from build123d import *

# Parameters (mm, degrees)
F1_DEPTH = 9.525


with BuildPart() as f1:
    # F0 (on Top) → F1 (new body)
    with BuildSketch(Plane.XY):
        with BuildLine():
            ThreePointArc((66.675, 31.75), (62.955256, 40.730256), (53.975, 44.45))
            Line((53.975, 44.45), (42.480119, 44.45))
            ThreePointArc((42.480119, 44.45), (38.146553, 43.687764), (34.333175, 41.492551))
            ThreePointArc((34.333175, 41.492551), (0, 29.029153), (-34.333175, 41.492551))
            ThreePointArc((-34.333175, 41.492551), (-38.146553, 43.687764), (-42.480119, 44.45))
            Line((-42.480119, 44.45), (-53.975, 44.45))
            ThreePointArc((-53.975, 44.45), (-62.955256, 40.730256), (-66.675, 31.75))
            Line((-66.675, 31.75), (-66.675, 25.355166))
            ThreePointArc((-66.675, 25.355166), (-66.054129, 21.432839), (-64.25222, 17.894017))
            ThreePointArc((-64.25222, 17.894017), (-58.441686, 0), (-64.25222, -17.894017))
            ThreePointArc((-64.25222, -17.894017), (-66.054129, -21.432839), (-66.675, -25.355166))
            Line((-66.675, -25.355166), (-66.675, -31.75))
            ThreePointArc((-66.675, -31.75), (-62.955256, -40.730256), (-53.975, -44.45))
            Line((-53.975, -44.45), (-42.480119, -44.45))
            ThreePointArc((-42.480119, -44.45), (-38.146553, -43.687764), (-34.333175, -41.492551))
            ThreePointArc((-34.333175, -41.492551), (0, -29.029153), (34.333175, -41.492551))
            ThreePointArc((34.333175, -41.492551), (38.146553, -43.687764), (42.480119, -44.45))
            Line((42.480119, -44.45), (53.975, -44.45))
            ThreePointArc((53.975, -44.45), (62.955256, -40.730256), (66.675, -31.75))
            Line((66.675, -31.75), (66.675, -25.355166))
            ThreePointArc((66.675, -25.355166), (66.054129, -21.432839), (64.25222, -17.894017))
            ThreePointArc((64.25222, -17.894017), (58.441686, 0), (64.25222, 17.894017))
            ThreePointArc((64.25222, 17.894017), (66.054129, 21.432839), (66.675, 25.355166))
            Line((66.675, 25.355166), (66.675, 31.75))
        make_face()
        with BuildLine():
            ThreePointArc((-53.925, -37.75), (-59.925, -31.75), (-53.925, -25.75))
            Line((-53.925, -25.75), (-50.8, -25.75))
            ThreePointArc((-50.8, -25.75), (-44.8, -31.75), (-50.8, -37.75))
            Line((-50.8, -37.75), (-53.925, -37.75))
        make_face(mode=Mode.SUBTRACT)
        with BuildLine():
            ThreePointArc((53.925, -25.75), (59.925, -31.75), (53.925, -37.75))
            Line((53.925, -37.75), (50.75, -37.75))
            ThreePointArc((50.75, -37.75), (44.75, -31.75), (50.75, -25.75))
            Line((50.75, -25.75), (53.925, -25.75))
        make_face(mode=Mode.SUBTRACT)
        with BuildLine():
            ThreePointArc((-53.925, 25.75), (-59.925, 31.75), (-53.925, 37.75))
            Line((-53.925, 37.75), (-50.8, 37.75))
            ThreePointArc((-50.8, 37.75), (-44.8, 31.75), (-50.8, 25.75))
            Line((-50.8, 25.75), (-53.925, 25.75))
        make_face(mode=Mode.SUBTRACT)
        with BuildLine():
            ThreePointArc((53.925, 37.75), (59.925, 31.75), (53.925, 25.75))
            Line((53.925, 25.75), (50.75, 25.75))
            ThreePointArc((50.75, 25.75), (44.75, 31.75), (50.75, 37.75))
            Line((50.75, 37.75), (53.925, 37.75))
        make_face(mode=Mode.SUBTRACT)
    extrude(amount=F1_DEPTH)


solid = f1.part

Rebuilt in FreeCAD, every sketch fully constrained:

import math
import FreeCAD as App
import Part
import Sketcher
from FreeCAD import Vector
Q = App.Units.Quantity

doc = App.newDocument("Part")
params = doc.addObject("Spreadsheet::Sheet", "Params")
for row, (alias, value) in enumerate([
    ("sketch1_radius", "0.5 in"),
    ("sketch1_radius2", "0.4999999 in"),
    ("sketch1_width", "0.125 in"),
    ("pad1_length", "0.375 in"),
], start=1):
    params.set(f"A{row}", alias)
    params.set(f"B{row}", "=" + value)
    params.setAlias(f"B{row}", alias)

body = doc.addObject("PartDesign::Body", "Body")

sketch1 = doc.addObject("Sketcher::SketchObject", "Sketch")
body.addObject(sketch1)
sketch1.AttachmentSupport = (doc.XY_Plane, [""])
sketch1.MapMode = "FlatFace"
sketch1.addGeometry(Part.ArcOfCircle(Part.Circle(Vector(54, 31.7, 0), Vector(0, 0, 1), 12.7), math.radians(0), math.radians(90)), False)
sketch1.addGeometry(Part.LineSegment(Vector(54, 44.5, 0), Vector(42.5, 44.5, 0)), False)
sketch1.addGeometry(Part.ArcOfCircle(Part.Circle(Vector(42.5, 31.8, 0), Vector(0, 0, 1), 12.7), math.radians(90), math.radians(130)), False)
sketch1.addGeometry(Part.ArcOfCircle(Part.Circle(Vector(0, 82.5, 0), Vector(0, 0, 1), 53.5), math.radians(-130), math.radians(-50)), False)
sketch1.addGeometry(Part.ArcOfCircle(Part.Circle(Vector(-42.5, 31.8, 0), Vector(0, 0, 1), 12.7), math.radians(50), math.radians(90)), False)
sketch1.addGeometry(Part.LineSegment(Vector(-42.5, 44.5, 0), Vector(-54, 44.5, 0)), False)
sketch1.addGeometry(Part.ArcOfCircle(Part.Circle(Vector(-54, 31.7, 0), Vector(0, 0, 1), 12.7), math.radians(90), math.radians(180)), False)
sketch1.addGeometry(Part.LineSegment(Vector(-66.7, 31.8, 0), Vector(-66.7, 25.4, 0)), False)
sketch1.addGeometry(Part.ArcOfCircle(Part.Circle(Vector(-54, 25.4, 0), Vector(0, 0, 1), 12.7), math.radians(180), math.radians(216)), False)
sketch1.addGeometry(Part.ArcOfCircle(Part.Circle(Vector(-88.9, 0, 0), Vector(0, 0, 1), 30.5), math.radians(-36), math.radians(36)), False)
sketch1.addGeometry(Part.ArcOfCircle(Part.Circle(Vector(-54, -25.4, 0), Vector(0, 0, 1), 12.7), math.radians(144), math.radians(180)), False)
sketch1.addGeometry(Part.LineSegment(Vector(-66.7, -25.4, 0), Vector(-66.7, -31.8, 0)), False)
sketch1.addGeometry(Part.ArcOfCircle(Part.Circle(Vector(-54, -31.7, 0), Vector(0, 0, 1), 12.7), math.radians(-180), math.radians(-90)), False)
sketch1.addGeometry(Part.LineSegment(Vector(-54, -44.5, 0), Vector(-42.5, -44.5, 0)), False)
sketch1.addGeometry(Part.ArcOfCircle(Part.Circle(Vector(-42.5, -31.8, 0), Vector(0, 0, 1), 12.7), math.radians(-90), math.radians(-50)), False)
sketch1.addGeometry(Part.ArcOfCircle(Part.Circle(Vector(0, -82.5, 0), Vector(0, 0, 1), 53.5), math.radians(50), math.radians(130)), False)
sketch1.addGeometry(Part.ArcOfCircle(Part.Circle(Vector(42.5, -31.8, 0), Vector(0, 0, 1), 12.7), math.radians(-130), math.radians(-90)), False)
sketch1.addGeometry(Part.LineSegment(Vector(42.5, -44.5, 0), Vector(54, -44.5, 0)), False)
sketch1.addGeometry(Part.ArcOfCircle(Part.Circle(Vector(54, -31.7, 0), Vector(0, 0, 1), 12.7), math.radians(-90), math.radians(0)), False)
sketch1.addGeometry(Part.LineSegment(Vector(66.7, -31.8, 0), Vector(66.7, -25.4, 0)), False)
sketch1.addGeometry(Part.ArcOfCircle(Part.Circle(Vector(54, -25.4, 0), Vector(0, 0, 1), 12.7), math.radians(0), math.radians(36)), False)
sketch1.addGeometry(Part.ArcOfCircle(Part.Circle(Vector(88.9, 0, 0), Vector(0, 0, 1), 30.5), math.radians(144), math.radians(216)), False)
sketch1.addGeometry(Part.ArcOfCircle(Part.Circle(Vector(54, 25.4, 0), Vector(0, 0, 1), 12.7), math.radians(-36), math.radians(0)), False)
sketch1.addGeometry(Part.LineSegment(Vector(66.7, 25.4, 0), Vector(66.7, 31.8, 0)), False)
sketch1.addGeometry(Part.LineSegment(Vector(-50.8, -37.8, 0), Vector(-53.9, -37.8, 0)), False)
sketch1.addGeometry(Part.ArcOfCircle(Part.Circle(Vector(-53.9, -31.8, 0), Vector(0, 0, 1), 6), math.radians(90), math.radians(270)), False)
sketch1.addGeometry(Part.LineSegment(Vector(-53.9, -25.8, 0), Vector(-50.8, -25.8, 0)), False)
sketch1.addGeometry(Part.ArcOfCircle(Part.Circle(Vector(-50.8, -31.8, 0), Vector(0, 0, 1), 6), math.radians(-90), math.radians(90)), False)
sketch1.addGeometry(Part.LineSegment(Vector(50.8, -25.8, 0), Vector(53.9, -25.8, 0)), False)
sketch1.addGeometry(Part.ArcOfCircle(Part.Circle(Vector(53.9, -31.8, 0), Vector(0, 0, 1), 6), math.radians(-90), math.radians(90)), False)
sketch1.addGeometry(Part.LineSegment(Vector(53.9, -37.8, 0), Vector(50.8, -37.8, 0)), False)
sketch1.addGeometry(Part.ArcOfCircle(Part.Circle(Vector(50.8, -31.8, 0), Vector(0, 0, 1), 6), math.radians(90), math.radians(270)), False)
sketch1.addGeometry(Part.LineSegment(Vector(-50.8, 25.8, 0), Vector(-53.9, 25.8, 0)), False)
sketch1.addGeometry(Part.ArcOfCircle(Part.Circle(Vector(-53.9, 31.8, 0), Vector(0, 0, 1), 6), math.radians(90), math.radians(270)), False)
sketch1.addGeometry(Part.LineSegment(Vector(-53.9, 37.8, 0), Vector(-50.8, 37.8, 0)), False)
sketch1.addGeometry(Part.ArcOfCircle(Part.Circle(Vector(-50.8, 31.8, 0), Vector(0, 0, 1), 6), math.radians(-90), math.radians(90)), False)
sketch1.addGeometry(Part.LineSegment(Vector(50.8, 37.8, 0), Vector(53.9, 37.8, 0)), False)
sketch1.addGeometry(Part.ArcOfCircle(Part.Circle(Vector(53.9, 31.8, 0), Vector(0, 0, 1), 6), math.radians(-90), math.radians(90)), False)
sketch1.addGeometry(Part.LineSegment(Vector(53.9, 25.8, 0), Vector(50.8, 25.8, 0)), False)
sketch1.addGeometry(Part.ArcOfCircle(Part.Circle(Vector(50.8, 31.8, 0), Vector(0, 0, 1), 6), math.radians(90), math.radians(270)), False)
sketch1.addConstraint(Sketcher.Constraint("Tangent", 0, 2, 1, 1))
sketch1.addConstraint(Sketcher.Constraint("Tangent", 1, 2, 2, 1))
sketch1.addConstraint(Sketcher.Constraint("Tangent", 2, 2, 3, 2))
sketch1.addConstraint(Sketcher.Constraint("Tangent", 3, 1, 4, 1))
sketch1.addConstraint(Sketcher.Constraint("Tangent", 4, 2, 5, 1))
sketch1.addConstraint(Sketcher.Constraint("Tangent", 5, 2, 6, 1))
sketch1.addConstraint(Sketcher.Constraint("Tangent", 6, 2, 7, 1))
sketch1.addConstraint(Sketcher.Constraint("Tangent", 7, 2, 8, 1))
sketch1.addConstraint(Sketcher.Constraint("Tangent", 8, 2, 9, 2))
sketch1.addConstraint(Sketcher.Constraint("Tangent", 9, 1, 10, 1))
sketch1.addConstraint(Sketcher.Constraint("Tangent", 10, 2, 11, 1))
sketch1.addConstraint(Sketcher.Constraint("Tangent", 11, 2, 12, 1))
sketch1.addConstraint(Sketcher.Constraint("Tangent", 12, 2, 13, 1))
sketch1.addConstraint(Sketcher.Constraint("Tangent", 13, 2, 14, 1))
sketch1.addConstraint(Sketcher.Constraint("Tangent", 14, 2, 15, 2))
sketch1.addConstraint(Sketcher.Constraint("Tangent", 15, 1, 16, 1))
sketch1.addConstraint(Sketcher.Constraint("Tangent", 16, 2, 17, 1))
sketch1.addConstraint(Sketcher.Constraint("Tangent", 17, 2, 18, 1))
sketch1.addConstraint(Sketcher.Constraint("Tangent", 18, 2, 19, 1))
sketch1.addConstraint(Sketcher.Constraint("Tangent", 19, 2, 20, 1))
sketch1.addConstraint(Sketcher.Constraint("Tangent", 20, 2, 21, 2))
sketch1.addConstraint(Sketcher.Constraint("Tangent", 21, 1, 22, 1))
sketch1.addConstraint(Sketcher.Constraint("Tangent", 22, 2, 23, 1))
sketch1.addConstraint(Sketcher.Constraint("Tangent", 23, 2, 0, 1))
sketch1.addConstraint(Sketcher.Constraint("Tangent", 24, 2, 25, 2))
sketch1.addConstraint(Sketcher.Constraint("Tangent", 25, 1, 26, 1))
sketch1.addConstraint(Sketcher.Constraint("Tangent", 26, 2, 27, 2))
sketch1.addConstraint(Sketcher.Constraint("Tangent", 27, 1, 24, 1))
sketch1.addConstraint(Sketcher.Constraint("Tangent", 28, 2, 29, 2))
sketch1.addConstraint(Sketcher.Constraint("Tangent", 29, 1, 30, 1))
sketch1.addConstraint(Sketcher.Constraint("Tangent", 30, 2, 31, 2))
sketch1.addConstraint(Sketcher.Constraint("Tangent", 31, 1, 28, 1))
sketch1.addConstraint(Sketcher.Constraint("Tangent", 32, 2, 33, 2))
sketch1.addConstraint(Sketcher.Constraint("Tangent", 33, 1, 34, 1))
sketch1.addConstraint(Sketcher.Constraint("Tangent", 34, 2, 35, 2))
sketch1.addConstraint(Sketcher.Constraint("Tangent", 35, 1, 32, 1))
sketch1.addConstraint(Sketcher.Constraint("Tangent", 36, 2, 37, 2))
sketch1.addConstraint(Sketcher.Constraint("Tangent", 37, 1, 38, 1))
sketch1.addConstraint(Sketcher.Constraint("Tangent", 38, 2, 39, 2))
sketch1.addConstraint(Sketcher.Constraint("Tangent", 39, 1, 36, 1))
sketch1.addConstraint(Sketcher.Constraint("Horizontal", 1))
sketch1.addConstraint(Sketcher.Constraint("Horizontal", 5))
sketch1.addConstraint(Sketcher.Constraint("Vertical", 7))
sketch1.addConstraint(Sketcher.Constraint("Vertical", 11))
sketch1.addConstraint(Sketcher.Constraint("Horizontal", 13))
sketch1.addConstraint(Sketcher.Constraint("Horizontal", 17))
sketch1.addConstraint(Sketcher.Constraint("Vertical", 19))
sketch1.addConstraint(Sketcher.Constraint("Vertical", 23))
sketch1.addConstraint(Sketcher.Constraint("Horizontal", 24))
sketch1.addConstraint(Sketcher.Constraint("Horizontal", 26))
sketch1.addConstraint(Sketcher.Constraint("Horizontal", 28))
sketch1.addConstraint(Sketcher.Constraint("Horizontal", 30))
sketch1.addConstraint(Sketcher.Constraint("Horizontal", 32))
sketch1.addConstraint(Sketcher.Constraint("Horizontal", 34))
sketch1.addConstraint(Sketcher.Constraint("Horizontal", 36))
sketch1.addConstraint(Sketcher.Constraint("Horizontal", 38))
sketch1.addConstraint(Sketcher.Constraint("Equal", 2, 4))
sketch1.addConstraint(Sketcher.Constraint("Equal", 0, 6))
sketch1.addConstraint(Sketcher.Constraint("Equal", 8, 10))
sketch1.addConstraint(Sketcher.Constraint("Equal", 6, 12))
sketch1.addConstraint(Sketcher.Constraint("Equal", 4, 14))
sketch1.addConstraint(Sketcher.Constraint("Equal", 3, 15))
sketch1.addConstraint(Sketcher.Constraint("Equal", 14, 16))
sketch1.addConstraint(Sketcher.Constraint("Equal", 12, 18))
sketch1.addConstraint(Sketcher.Constraint("Equal", 10, 20))
sketch1.addConstraint(Sketcher.Constraint("Equal", 9, 21))
sketch1.addConstraint(Sketcher.Constraint("Equal", 20, 22))
sketch1.addConstraint(Sketcher.Constraint("Equal", 27, 29))
sketch1.addConstraint(Sketcher.Constraint("Equal", 31, 33))
sketch1.addConstraint(Sketcher.Constraint("Equal", 35, 37))
sketch1.addConstraint(Sketcher.Constraint("Symmetric", 0, 3, 12, 3, -1, 1))
sketch1.addConstraint(Sketcher.Constraint("Symmetric", 3, 3, 15, 3, -1, 1))
sketch1.addConstraint(Sketcher.Constraint("Symmetric", 6, 3, 18, 3, -1, 1))
sketch1.addConstraint(Sketcher.Constraint("Symmetric", 9, 3, 21, 3, -1, 1))
sketch1.addConstraint(Sketcher.Constraint("Symmetric", 29, 3, 33, 3, -1, 1))
sketch1.addConstraint(Sketcher.Constraint("Symmetric", 25, 3, 37, 3, -1, 1))
sketch1.addConstraint(Sketcher.Constraint("Symmetric", 2, 3, 4, 3, -2))
sketch1.addConstraint(Sketcher.Constraint("Symmetric", 10, 3, 20, 3, -2))
sketch1.addConstraint(Sketcher.Constraint("Symmetric", 25, 3, 29, 3, -2))
sketch1.addConstraint(Sketcher.Constraint("Horizontal", 18, 3, 25, 3))
sketch1.addConstraint(Sketcher.Constraint("Vertical", 27, 3, 35, 3))
sketch1.addConstraint(Sketcher.Constraint("Vertical", 31, 3, 39, 3))
sketch1.addConstraint(Sketcher.Constraint("Radius", 0, Q("0.5 in")))
sketch1.addConstraint(Sketcher.Constraint("Radius", 2, Q("0.4999999 in")))
sketch1.addConstraint(Sketcher.Constraint("DistanceX", 27, 3, -1, 1, Q("2 in")))
sketch1.addConstraint(Sketcher.Constraint("DistanceX", 9, 3, -1, 1, Q("3.5 in")))
sketch1.addConstraint(Sketcher.Constraint("DistanceX", 28, 1, 28, 2, Q("0.125 in")))
sketch1.addConstraint(Sketcher.Constraint("DistanceY", -1, 1, 0, 3, Q("1.25 in")))
sketch1.addConstraint(Sketcher.Constraint("DistanceY", -1, 1, 3, 3, Q("3.2499999 in")))
sketch1.addConstraint(Sketcher.Constraint("Radius", 25, Q("6 mm")))
sketch1.addConstraint(Sketcher.Constraint("DistanceX", -1, 1, 0, 3, Q("2.125 in")))
sketch1.addConstraint(Sketcher.Constraint("DistanceX", 24, 2, 24, 1, Q("3.125 mm")))
sketch1.addConstraint(Sketcher.Constraint("DistanceX", -1, 1, 2, 2, Q("1.3516998 in")))
sketch1.addConstraint(Sketcher.Constraint("Radius", 8, Q("12.699993 mm")))
sketch1.addConstraint(Sketcher.Constraint("Radius", 9, Q("30.458315 mm")))
sketch1.setExpression("Constraints[82]", "Params.sketch1_radius")
sketch1.setExpression("Constraints[83]", "Params.sketch1_radius2")
sketch1.setExpression("Constraints[86]", "Params.sketch1_width")
pad1 = doc.addObject("PartDesign::Pad", "Pad")
body.addObject(pad1)
pad1.Profile = sketch1
pad1.setExpression("Length", "Params.pad1_length")

doc.recompute()
